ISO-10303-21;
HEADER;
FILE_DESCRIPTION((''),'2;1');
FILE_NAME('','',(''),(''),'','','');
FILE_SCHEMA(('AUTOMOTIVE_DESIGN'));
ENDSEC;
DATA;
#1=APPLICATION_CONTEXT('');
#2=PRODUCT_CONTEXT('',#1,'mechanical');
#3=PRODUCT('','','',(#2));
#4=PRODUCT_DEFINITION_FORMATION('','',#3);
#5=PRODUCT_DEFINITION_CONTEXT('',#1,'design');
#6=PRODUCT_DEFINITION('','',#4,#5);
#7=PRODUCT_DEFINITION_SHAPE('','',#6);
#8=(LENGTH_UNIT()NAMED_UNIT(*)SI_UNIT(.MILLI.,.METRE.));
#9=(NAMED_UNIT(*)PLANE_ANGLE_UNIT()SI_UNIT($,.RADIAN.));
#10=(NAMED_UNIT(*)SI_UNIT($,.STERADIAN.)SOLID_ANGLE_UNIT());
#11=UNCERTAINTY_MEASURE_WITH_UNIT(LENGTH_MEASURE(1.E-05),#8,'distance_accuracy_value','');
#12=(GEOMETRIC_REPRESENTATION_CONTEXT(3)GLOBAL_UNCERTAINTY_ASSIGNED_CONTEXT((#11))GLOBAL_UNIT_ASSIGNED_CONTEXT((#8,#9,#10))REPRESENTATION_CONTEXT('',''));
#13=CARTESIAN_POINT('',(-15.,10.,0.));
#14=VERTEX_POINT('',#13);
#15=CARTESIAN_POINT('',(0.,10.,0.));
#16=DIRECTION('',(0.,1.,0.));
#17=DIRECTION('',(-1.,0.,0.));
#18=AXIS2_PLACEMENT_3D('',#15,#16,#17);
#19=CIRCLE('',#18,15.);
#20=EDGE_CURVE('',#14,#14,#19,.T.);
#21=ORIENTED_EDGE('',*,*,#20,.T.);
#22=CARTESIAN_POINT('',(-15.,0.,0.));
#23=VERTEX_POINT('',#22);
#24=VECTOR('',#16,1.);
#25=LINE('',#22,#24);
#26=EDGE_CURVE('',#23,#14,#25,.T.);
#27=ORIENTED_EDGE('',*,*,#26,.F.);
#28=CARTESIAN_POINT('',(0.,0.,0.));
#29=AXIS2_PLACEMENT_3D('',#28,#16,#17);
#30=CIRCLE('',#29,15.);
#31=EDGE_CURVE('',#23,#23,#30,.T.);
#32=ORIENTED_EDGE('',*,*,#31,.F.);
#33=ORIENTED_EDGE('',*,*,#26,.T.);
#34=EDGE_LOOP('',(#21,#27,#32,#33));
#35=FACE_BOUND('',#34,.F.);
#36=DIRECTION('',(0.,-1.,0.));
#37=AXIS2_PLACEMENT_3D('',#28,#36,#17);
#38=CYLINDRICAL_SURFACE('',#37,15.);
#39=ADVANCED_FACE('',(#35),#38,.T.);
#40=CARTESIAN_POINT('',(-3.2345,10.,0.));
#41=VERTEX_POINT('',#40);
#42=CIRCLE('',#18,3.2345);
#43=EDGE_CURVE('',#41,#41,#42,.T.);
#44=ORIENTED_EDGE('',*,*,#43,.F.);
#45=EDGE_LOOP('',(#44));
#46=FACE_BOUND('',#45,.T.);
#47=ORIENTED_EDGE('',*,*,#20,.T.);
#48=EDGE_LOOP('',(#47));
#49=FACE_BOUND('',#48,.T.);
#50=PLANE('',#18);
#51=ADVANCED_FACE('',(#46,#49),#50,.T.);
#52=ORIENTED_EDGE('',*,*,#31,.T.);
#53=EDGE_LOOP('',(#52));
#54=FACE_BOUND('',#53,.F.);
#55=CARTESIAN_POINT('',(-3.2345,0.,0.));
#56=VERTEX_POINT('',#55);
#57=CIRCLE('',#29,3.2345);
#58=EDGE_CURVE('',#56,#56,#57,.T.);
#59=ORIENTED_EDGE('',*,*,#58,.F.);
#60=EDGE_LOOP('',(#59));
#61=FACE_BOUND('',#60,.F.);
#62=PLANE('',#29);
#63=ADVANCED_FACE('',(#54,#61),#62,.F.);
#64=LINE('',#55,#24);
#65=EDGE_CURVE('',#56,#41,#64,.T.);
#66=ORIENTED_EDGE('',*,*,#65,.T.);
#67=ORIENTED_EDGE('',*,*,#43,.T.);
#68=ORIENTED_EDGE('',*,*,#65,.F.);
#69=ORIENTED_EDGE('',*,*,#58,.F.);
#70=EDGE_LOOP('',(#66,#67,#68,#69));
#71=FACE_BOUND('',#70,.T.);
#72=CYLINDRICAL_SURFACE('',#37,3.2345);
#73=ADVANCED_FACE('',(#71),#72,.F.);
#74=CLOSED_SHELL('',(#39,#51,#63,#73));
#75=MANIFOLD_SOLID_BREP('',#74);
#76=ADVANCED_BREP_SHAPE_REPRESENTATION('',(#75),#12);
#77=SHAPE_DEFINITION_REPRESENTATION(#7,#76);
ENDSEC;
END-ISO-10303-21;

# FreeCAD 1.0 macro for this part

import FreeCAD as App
import Part
import Sketcher

V = App.Vector

doc = App.newDocument("Part")
body = doc.addObject("PartDesign::Body", "Body")

# Sketch on XZ plane
sketch1 = doc.addObject("Sketcher::SketchObject", "Sketch")
body.addObject(sketch1)
sketch1.AttachmentSupport = (doc.XZ_Plane, [""])
sketch1.MapMode = "FlatFace"
sketch1.addGeometry([
    Part.Circle(V(0, 0, 0), V(0, 0, 1), 15),
    Part.Circle(V(0, 0, 0), V(0, 0, 1), 3.2),
], False)
sketch1.addConstraint([
    Sketcher.Constraint("Coincident", 0, 3, -1, 1),
    Sketcher.Constraint("Coincident", 1, 3, -1, 1),
    Sketcher.Constraint("Diameter", 0, 30.0),
    Sketcher.Constraint("Diameter", 1, 6.469),
])
pad1 = doc.addObject("PartDesign::Pad", "Pad")
body.addObject(pad1)
pad1.Profile = sketch1
pad1.Length = 10
pad1.Reversed = True

doc.recompute()
